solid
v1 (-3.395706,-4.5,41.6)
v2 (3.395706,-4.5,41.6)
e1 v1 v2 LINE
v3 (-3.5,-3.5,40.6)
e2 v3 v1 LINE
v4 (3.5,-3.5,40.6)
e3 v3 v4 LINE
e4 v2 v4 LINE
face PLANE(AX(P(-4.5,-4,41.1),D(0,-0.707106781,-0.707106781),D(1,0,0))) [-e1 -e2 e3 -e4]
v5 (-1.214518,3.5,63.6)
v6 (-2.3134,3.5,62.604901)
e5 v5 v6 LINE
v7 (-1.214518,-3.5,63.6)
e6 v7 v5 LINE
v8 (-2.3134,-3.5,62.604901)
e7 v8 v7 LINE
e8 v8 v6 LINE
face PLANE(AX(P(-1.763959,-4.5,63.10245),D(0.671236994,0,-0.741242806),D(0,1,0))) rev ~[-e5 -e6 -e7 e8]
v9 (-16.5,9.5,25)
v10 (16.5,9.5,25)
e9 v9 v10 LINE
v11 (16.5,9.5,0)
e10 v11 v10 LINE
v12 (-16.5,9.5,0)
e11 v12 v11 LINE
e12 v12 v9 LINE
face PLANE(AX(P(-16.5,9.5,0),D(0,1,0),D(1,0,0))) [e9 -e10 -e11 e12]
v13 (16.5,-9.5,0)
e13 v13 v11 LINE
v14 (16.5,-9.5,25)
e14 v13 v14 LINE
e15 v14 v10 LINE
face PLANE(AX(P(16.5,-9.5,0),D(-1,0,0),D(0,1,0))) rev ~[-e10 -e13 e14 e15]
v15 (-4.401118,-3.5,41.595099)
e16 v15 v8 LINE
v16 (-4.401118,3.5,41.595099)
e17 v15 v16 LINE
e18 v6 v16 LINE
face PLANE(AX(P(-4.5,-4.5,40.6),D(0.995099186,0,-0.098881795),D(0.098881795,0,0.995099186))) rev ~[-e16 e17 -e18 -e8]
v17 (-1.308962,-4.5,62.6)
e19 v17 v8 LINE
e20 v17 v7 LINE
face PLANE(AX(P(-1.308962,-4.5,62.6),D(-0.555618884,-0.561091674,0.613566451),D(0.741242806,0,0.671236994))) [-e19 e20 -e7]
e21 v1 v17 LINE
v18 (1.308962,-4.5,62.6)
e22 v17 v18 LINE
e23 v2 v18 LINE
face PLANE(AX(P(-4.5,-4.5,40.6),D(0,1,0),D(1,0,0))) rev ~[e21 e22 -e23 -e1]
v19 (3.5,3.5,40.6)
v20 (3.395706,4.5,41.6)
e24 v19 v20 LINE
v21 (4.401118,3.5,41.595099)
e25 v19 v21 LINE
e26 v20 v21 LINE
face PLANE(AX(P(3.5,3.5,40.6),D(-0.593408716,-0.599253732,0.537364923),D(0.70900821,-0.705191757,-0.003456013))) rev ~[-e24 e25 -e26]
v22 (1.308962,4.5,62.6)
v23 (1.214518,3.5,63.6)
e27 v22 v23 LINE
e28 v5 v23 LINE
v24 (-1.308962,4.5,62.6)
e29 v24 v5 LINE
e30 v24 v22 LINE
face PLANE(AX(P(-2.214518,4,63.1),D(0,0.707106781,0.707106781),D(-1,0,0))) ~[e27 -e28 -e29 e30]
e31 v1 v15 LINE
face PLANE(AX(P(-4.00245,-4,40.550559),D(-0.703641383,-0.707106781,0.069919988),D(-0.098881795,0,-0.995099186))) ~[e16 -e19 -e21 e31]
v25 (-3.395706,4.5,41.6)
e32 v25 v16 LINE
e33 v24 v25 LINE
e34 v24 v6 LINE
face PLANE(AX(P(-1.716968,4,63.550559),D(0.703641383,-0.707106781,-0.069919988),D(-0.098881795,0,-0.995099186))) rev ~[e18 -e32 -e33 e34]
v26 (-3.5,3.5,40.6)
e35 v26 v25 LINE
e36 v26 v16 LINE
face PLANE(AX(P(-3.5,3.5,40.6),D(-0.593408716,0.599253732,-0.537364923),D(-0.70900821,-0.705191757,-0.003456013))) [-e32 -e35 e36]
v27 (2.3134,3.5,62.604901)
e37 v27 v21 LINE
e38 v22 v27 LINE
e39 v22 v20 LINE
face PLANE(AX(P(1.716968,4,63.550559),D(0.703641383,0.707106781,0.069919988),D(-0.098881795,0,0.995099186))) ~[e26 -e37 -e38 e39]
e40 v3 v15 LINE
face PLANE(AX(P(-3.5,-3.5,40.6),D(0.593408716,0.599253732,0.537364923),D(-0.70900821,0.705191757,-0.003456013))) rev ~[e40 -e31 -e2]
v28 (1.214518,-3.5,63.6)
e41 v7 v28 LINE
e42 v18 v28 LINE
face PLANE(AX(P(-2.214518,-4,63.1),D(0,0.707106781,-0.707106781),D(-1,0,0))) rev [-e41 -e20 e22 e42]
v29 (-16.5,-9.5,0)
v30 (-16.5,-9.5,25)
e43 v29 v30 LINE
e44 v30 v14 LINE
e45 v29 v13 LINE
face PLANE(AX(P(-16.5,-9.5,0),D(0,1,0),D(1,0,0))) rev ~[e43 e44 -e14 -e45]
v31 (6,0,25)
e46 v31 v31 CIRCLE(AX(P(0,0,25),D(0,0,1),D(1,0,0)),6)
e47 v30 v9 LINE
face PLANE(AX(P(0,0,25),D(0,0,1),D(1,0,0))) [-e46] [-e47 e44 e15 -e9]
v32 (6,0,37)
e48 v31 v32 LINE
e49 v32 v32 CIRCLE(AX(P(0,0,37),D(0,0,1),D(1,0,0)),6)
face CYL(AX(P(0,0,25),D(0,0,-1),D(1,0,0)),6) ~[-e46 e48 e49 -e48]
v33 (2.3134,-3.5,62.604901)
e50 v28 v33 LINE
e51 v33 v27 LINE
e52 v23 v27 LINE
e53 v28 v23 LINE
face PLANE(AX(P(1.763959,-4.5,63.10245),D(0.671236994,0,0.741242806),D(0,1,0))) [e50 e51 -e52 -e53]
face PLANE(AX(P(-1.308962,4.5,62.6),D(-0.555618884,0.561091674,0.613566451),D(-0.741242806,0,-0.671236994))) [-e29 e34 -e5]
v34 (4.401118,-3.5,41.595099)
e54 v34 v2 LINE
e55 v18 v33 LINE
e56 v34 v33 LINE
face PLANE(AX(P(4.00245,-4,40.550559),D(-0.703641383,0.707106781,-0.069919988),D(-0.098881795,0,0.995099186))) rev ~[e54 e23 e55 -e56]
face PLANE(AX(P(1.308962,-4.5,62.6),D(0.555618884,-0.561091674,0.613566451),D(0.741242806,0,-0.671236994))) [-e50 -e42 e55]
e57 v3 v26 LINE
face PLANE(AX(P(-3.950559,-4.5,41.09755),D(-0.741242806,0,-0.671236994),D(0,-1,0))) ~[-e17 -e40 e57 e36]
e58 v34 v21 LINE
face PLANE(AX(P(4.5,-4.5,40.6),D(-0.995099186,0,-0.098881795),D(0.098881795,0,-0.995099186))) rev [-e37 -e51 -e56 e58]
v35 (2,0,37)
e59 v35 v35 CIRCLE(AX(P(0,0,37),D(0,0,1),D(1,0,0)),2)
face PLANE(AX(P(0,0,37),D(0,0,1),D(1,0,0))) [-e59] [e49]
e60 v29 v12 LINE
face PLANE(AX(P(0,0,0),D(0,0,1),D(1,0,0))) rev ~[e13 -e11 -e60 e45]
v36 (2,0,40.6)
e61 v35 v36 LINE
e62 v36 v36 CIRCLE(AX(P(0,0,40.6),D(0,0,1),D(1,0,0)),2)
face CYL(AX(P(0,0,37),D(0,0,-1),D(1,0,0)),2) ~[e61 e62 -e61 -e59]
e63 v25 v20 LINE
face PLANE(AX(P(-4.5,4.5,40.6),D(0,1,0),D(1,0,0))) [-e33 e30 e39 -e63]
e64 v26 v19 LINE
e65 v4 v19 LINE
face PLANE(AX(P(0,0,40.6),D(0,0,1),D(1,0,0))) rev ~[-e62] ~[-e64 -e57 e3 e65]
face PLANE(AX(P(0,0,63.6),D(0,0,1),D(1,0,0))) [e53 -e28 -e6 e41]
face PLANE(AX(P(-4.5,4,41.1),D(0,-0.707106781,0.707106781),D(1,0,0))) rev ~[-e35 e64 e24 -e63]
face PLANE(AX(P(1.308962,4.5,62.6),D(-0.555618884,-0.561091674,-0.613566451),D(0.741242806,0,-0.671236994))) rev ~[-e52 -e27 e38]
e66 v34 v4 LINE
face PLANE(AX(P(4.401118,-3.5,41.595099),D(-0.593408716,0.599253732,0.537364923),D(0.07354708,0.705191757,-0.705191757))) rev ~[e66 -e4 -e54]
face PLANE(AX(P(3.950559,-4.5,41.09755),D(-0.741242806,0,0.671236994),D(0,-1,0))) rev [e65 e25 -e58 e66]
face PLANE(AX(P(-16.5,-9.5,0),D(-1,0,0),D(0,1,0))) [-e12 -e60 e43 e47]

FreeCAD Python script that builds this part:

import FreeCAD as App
import Part
import Sketcher

V = App.Vector
Q = App.Units.Quantity


def edges_at(feature, points):
    """Names of the edges that pass closest to the given points."""
    edges = feature.Shape.Edges
    near = lambda p: min(range(len(edges)), key=lambda i: edges[i].distToShape(Part.Vertex(*p))[0])
    return sorted({f"Edge{near(p) + 1}" for p in points})


def add_polygon(sketch, points):
    """Adds a closed chain of lines whose ends are joined by coincident constraints."""
    first, n = sketch.GeometryCount, len(points)
    for a, b in zip(points, points[1:] + points[:1]):
        sketch.addGeometry(Part.LineSegment(App.Vector(*a, 0), App.Vector(*b, 0)), False)
    for i in range(n):
        sketch.addConstraint(Sketcher.Constraint("Coincident", first + i, 2, first + (i + 1) % n, 1))

doc = App.newDocument("Part")
body = doc.addObject("PartDesign::Body", "Body")

# Sketch on XY plane
sketch1 = doc.addObject("Sketcher::SketchObject", "Sketch")
body.addObject(sketch1)
sketch1.AttachmentSupport = (doc.XY_Plane, [""])
sketch1.MapMode = "FlatFace"
add_polygon(sketch1, [(-16, 10), (-16, -10), (16, -10), (16, 10)])  # lines 0-3
sketch1.addConstraint([
    Sketcher.Constraint("Vertical", 0),
    Sketcher.Constraint("Horizontal", 1),
    Sketcher.Constraint("Vertical", 2),
    Sketcher.Constraint("Horizontal", 3),
    Sketcher.Constraint("Symmetric", 0, 2, 2, 2, -1, 1),
    Sketcher.Constraint("DistanceX", 1, 1, 1, 2, Q("33 mm")),
    Sketcher.Constraint("DistanceY", 0, 2, 0, 1, Q("19 mm")),
])
pad1 = doc.addObject("PartDesign::Pad", "Pad")
body.addObject(pad1)
pad1.Profile = sketch1
pad1.Length = 25

# Sketch on XY plane
sketch2 = doc.addObject("Sketcher::SketchObject", "Sketch001")
body.addObject(sketch2)
sketch2.AttachmentSupport = (doc.XY_Plane, [""])
sketch2.MapMode = "FlatFace"
sketch2.AttachmentOffset = App.Placement(V(0, 0, 25), App.Rotation())
sketch2.addGeometry(Part.Circle(V(0, 0, 0), V(0, 0, 1), 6), False)
sketch2.addConstraint([
    Sketcher.Constraint("Coincident", 0, 3, -1, 1),
    Sketcher.Constraint("Diameter", 0, Q("12 mm")),
])
pad2 = doc.addObject("PartDesign::Pad", "Pad001")
body.addObject(pad2)
pad2.Profile = sketch2
pad2.Length = 12

# Sketch on XY plane
sketch3 = doc.addObject("Sketcher::SketchObject", "Sketch002")
body.addObject(sketch3)
sketch3.AttachmentSupport = (doc.XY_Plane, [""])
sketch3.MapMode = "FlatFace"
sketch3.AttachmentOffset = App.Placement(V(0, 0, 37), App.Rotation())
sketch3.addGeometry(Part.Circle(V(0, 0, 0), V(0, 0, 1), 2), False)
sketch3.addConstraint([
    Sketcher.Constraint("Coincident", 0, 3, -1, 1),
    Sketcher.Constraint("Diameter", 0, Q("4 mm")),
])
pad3 = doc.addObject("PartDesign::Pad", "Pad002")
body.addObject(pad3)
pad3.Profile = sketch3
pad3.Length = 3.6

# Sketch on XY plane
sketch4 = doc.addObject("Sketcher::SketchObject", "Sketch003")
body.addObject(sketch4)
sketch4.AttachmentSupport = (doc.XY_Plane, [""])
sketch4.MapMode = "FlatFace"
sketch4.AttachmentOffset = App.Placement(V(0, 0, 40.6), App.Rotation())
add_polygon(sketch4, [(-4, 4), (-4, -4), (4, -4), (4, 4)])  # lines 0-3
sketch4.addConstraint([
    Sketcher.Constraint("Vertical", 0),
    Sketcher.Constraint("Horizontal", 1),
    Sketcher.Constraint("Vertical", 2),
    Sketcher.Constraint("Horizontal", 3),
    Sketcher.Constraint("Symmetric", 0, 2, 2, 2, -1, 1),
    Sketcher.Constraint("Equal", 3, 0),
    Sketcher.Constraint("DistanceX", 1, 1, 1, 2, Q("9 mm")),
])
pad4 = doc.addObject("PartDesign::Pad", "Pad003")
body.addObject(pad4)
pad4.Profile = sketch4
pad4.Length = 23

# Sketch on XZ plane
sketch5 = doc.addObject("Sketcher::SketchObject", "Sketch004")
body.addObject(sketch5)
sketch5.AttachmentSupport = (doc.XZ_Plane, [""])
sketch5.MapMode = "FlatFace"
sketch5.AttachmentOffset = App.Placement(V(0, 0, 4.5), App.Rotation())
add_polygon(sketch5, [(-4.5, 40.6), (-2.2, 63.6), (-4.5, 63.6)])  # lines 0-2
sketch5.addConstraint([
    Sketcher.Constraint("Horizontal", 1),
    Sketcher.Constraint("Vertical", 2),
    Sketcher.Constraint("DistanceY", 2, 2, 2, 1, Q("23 mm")),
    Sketcher.Constraint("DistanceY", -1, 1, 0, 2, Q("63.6 mm")),
    Sketcher.Constraint("DistanceX", 1, 2, -1, 1, Q("4.5 mm")),
    Sketcher.Constraint("DistanceX", 1, 2, 1, 1, Q("2.285482 mm")),
])
pocket1 = doc.addObject("PartDesign::Pocket", "Pocket")
body.addObject(pocket1)
pocket1.Profile = sketch5
pocket1.Length = 13
doc.recompute()

mirrored = doc.addObject("PartDesign::Mirrored", "Mirrored")
body.addObject(mirrored)
mirrored.Originals = [pocket1]
mirrored.MirrorPlane = (doc.YZ_Plane, [""])
body.Tip = mirrored
doc.recompute()

chamfer = doc.addObject("PartDesign::Chamfer", "Chamfer")
body.addObject(chamfer)
chamfer.Base = (mirrored, edges_at(mirrored, [
    (-3.357, -4.5, 52.1),
    (0, -4.5, 40.6),
    (3.357, -4.5, 52.1),
    (-4.5, 0, 40.6),
    (-3.357, 4.5, 52.1),
    (3.357, 4.5, 52.1),
    (0, 4.5, 40.6),
    (2.215, 0, 63.6),
    (0, -4.5, 63.6),
    (-2.215, 0, 63.6),
    (0, 4.5, 63.6),
    (4.5, 0, 40.6),
]))
chamfer.Size = 1

doc.recompute()
